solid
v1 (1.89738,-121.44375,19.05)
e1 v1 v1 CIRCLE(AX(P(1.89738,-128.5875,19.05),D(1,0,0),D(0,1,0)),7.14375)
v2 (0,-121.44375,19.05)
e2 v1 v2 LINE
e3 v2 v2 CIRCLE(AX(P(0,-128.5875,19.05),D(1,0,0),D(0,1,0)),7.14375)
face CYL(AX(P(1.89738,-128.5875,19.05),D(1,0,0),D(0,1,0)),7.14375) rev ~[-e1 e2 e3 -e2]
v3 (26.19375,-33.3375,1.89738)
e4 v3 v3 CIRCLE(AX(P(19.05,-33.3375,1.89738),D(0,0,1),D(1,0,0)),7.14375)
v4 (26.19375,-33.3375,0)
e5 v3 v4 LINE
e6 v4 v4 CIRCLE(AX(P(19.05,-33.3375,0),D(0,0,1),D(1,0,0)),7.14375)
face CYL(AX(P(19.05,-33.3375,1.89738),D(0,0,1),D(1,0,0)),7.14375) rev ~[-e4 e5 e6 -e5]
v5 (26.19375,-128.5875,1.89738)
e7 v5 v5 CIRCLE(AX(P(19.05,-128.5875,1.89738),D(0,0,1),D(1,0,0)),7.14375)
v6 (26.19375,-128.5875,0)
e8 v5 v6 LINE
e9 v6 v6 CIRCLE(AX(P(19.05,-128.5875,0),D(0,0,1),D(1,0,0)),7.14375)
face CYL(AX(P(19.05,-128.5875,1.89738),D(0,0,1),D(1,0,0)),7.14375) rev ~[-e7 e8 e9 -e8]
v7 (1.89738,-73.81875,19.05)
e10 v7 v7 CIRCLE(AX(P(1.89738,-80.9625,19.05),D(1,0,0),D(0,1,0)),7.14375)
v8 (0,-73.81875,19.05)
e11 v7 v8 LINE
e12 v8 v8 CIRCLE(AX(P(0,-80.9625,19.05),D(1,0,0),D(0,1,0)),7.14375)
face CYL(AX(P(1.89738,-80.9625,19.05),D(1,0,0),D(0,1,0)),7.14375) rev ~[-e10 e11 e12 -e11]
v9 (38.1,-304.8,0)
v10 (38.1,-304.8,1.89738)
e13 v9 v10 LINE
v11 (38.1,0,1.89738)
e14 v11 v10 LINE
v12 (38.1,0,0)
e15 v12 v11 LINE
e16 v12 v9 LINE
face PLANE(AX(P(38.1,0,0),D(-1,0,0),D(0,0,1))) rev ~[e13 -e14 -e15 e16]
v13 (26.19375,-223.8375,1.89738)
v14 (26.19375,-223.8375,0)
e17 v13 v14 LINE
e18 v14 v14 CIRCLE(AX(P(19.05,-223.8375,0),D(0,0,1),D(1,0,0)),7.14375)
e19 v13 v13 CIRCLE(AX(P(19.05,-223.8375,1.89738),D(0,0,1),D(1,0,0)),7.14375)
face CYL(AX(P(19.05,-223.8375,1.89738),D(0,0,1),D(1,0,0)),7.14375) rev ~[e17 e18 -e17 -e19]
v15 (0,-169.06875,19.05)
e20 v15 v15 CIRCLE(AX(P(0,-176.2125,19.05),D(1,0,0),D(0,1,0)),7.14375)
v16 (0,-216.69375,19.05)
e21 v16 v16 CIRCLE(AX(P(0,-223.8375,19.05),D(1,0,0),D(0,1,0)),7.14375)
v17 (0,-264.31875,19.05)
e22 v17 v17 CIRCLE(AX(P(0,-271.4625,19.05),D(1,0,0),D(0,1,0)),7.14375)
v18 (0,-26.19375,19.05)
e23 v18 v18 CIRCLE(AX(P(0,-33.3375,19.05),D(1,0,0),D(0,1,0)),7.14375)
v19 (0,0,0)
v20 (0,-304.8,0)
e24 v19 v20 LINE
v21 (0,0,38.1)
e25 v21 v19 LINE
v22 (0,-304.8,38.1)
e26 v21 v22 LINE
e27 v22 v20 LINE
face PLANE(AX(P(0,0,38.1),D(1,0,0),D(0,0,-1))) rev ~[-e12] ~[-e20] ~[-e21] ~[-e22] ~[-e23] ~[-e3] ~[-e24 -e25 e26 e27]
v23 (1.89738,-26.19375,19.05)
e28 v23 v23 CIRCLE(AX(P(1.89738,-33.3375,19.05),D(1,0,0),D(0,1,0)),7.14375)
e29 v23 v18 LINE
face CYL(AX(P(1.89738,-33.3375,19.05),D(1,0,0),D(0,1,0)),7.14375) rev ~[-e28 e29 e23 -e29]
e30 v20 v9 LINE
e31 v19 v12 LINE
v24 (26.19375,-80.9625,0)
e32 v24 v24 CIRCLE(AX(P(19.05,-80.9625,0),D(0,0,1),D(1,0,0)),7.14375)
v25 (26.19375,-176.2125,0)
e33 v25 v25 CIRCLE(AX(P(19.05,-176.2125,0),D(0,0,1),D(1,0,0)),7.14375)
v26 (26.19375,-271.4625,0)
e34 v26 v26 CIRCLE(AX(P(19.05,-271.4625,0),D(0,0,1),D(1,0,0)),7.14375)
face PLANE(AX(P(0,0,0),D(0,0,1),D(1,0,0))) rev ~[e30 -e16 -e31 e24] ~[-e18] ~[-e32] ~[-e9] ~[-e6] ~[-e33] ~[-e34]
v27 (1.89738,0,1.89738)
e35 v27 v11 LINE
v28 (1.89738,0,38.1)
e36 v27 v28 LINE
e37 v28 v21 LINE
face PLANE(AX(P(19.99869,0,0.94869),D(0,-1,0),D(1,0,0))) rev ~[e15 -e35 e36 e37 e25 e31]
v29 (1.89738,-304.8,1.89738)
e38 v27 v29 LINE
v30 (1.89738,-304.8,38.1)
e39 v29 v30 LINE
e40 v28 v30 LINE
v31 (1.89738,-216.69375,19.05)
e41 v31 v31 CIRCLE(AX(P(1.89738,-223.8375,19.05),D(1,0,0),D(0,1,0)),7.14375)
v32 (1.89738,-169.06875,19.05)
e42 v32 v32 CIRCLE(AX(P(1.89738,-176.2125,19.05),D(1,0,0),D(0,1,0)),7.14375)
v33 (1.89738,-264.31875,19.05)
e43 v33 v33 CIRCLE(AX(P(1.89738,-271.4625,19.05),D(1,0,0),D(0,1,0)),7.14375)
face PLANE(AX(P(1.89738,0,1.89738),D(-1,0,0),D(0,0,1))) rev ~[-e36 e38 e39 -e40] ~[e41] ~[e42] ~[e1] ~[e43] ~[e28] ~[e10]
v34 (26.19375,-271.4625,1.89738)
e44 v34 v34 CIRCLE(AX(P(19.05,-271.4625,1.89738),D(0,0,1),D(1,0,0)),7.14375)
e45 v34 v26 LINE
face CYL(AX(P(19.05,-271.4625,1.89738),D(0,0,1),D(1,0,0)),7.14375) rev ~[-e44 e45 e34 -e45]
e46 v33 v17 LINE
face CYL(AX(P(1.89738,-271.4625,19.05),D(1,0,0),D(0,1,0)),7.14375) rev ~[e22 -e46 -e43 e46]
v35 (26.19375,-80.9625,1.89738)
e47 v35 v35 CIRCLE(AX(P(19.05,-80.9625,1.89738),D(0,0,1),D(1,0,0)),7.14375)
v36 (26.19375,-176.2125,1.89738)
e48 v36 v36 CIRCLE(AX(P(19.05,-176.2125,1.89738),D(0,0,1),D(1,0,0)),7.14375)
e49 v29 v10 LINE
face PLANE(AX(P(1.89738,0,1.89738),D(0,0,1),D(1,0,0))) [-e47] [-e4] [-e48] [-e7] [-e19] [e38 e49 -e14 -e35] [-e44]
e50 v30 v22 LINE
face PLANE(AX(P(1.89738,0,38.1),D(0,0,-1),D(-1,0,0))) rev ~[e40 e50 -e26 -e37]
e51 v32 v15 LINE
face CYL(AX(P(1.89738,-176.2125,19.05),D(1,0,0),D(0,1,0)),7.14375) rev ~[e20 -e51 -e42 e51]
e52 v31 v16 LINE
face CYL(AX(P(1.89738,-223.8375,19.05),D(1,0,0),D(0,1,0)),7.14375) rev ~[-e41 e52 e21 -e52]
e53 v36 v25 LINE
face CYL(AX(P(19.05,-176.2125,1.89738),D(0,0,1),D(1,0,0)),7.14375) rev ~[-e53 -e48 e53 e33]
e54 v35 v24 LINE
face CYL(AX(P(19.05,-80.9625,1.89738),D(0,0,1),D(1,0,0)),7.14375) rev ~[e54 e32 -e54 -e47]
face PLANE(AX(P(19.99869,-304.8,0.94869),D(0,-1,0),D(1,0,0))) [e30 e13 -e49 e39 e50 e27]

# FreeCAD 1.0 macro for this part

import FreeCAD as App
import Part
import Sketcher
Q = App.Units.Quantity

doc = App.newDocument("Part")
body = doc.addObject("PartDesign::Body", "Body")

# Sketch on XZ plane
sketch1 = body.newObject("Sketcher::SketchObject", "Sketch")
sketch1.AttachmentSupport = (doc.getObject("XZ_Plane"), [""])
sketch1.MapMode = "FlatFace"
sketch1.addGeometry([
    Part.LineSegment(App.Vector(38.1, 0, 0), App.Vector(38.1, 1.89738, 0)),  # 0
    Part.LineSegment(App.Vector(38.1, 1.89738, 0), App.Vector(1.89738, 1.89738, 0)),  # 1
    Part.LineSegment(App.Vector(1.89738, 1.89738, 0), App.Vector(1.89738, 38.1, 0)),  # 2
    Part.LineSegment(App.Vector(1.89738, 38.1, 0), App.Vector(0, 38.1, 0)),  # 3
    Part.LineSegment(App.Vector(0, 38.1, 0), App.Vector(0, 0, 0)),  # 4
    Part.LineSegment(App.Vector(0, 0, 0), App.Vector(38.1, 0, 0)),  # 5
], False)
sketch1.addConstraint([
    Sketcher.Constraint("Coincident", 0, 2, 1, 1),
    Sketcher.Constraint("Coincident", 1, 2, 2, 1),
    Sketcher.Constraint("Coincident", 2, 2, 3, 1),
    Sketcher.Constraint("Coincident", 3, 2, 4, 1),
    Sketcher.Constraint("Coincident", 4, 2, 5, 1),
    Sketcher.Constraint("Coincident", 5, 2, 0, 1),
    Sketcher.Constraint("Vertical", 0),
    Sketcher.Constraint("Horizontal", 1),
    Sketcher.Constraint("Vertical", 2),
    Sketcher.Constraint("Horizontal", 3),
    Sketcher.Constraint("Vertical", 4),
    Sketcher.Constraint("Horizontal", 5),
    Sketcher.Constraint("Coincident", 4, 2, -1, 1),
    Sketcher.Constraint("Equal", 3, 0),
    Sketcher.Constraint("Equal", 1, 2),
    Sketcher.Constraint("DistanceX", 5, 1, 5, 2, Q("1.5 in")),
    Sketcher.Constraint("DistanceX", 1, 2, 1, 1, Q("1.4253 in")),
])
pad1 = body.newObject("PartDesign::Pad", "Pad")
pad1.Profile = sketch1
pad1.Length = Q("12 in")

# Sketch on XY plane
sketch2 = body.newObject("Sketcher::SketchObject", "Sketch001")
sketch2.AttachmentSupport = (doc.getObject("XY_Plane"), [""])
sketch2.MapMode = "FlatFace"
sketch2.AttachmentOffset = App.Placement(App.Vector(0, 0, 0.0747 * 25.4), App.Rotation())
sketch2.addGeometry([
    Part.Circle(App.Vector(19.05, -271.4625, 0), App.Vector(0, 0, 1), 7.14375),  # 0
    Part.Circle(App.Vector(19.05, -223.8375, 0), App.Vector(0, 0, 1), 7.14375),  # 1
    Part.Circle(App.Vector(19.05, -176.2125, 0), App.Vector(0, 0, 1), 7.14375),  # 2
    Part.Circle(App.Vector(19.05, -128.5875, 0), App.Vector(0, 0, 1), 7.14375),  # 3
    Part.Circle(App.Vector(19.05, -80.9625, 0), App.Vector(0, 0, 1), 7.14375),  # 4
    Part.Circle(App.Vector(19.05, -33.3375, 0), App.Vector(0, 0, 1), 7.14375),  # 5
], False)
sketch2.addConstraint([
    Sketcher.Constraint("Equal", 0, 1),
    Sketcher.Constraint("Equal", 1, 2),
    Sketcher.Constraint("Equal", 2, 3),
    Sketcher.Constraint("Equal", 3, 4),
    Sketcher.Constraint("Equal", 4, 5),
    Sketcher.Constraint("Vertical", 0, 3, 1, 3),
    Sketcher.Constraint("Vertical", 1, 3, 2, 3),
    Sketcher.Constraint("Vertical", 2, 3, 3, 3),
    Sketcher.Constraint("Vertical", 3, 3, 4, 3),
    Sketcher.Constraint("Vertical", 4, 3, 5, 3),
    Sketcher.Constraint("Diameter", 0, Q("0.5625 in")),
    Sketcher.Constraint("DistanceY", 0, 3, 4, 3, Q("7.5 in")),
    Sketcher.Constraint("DistanceY", 1, 3, 5, 3, Q("7.5 in")),
    Sketcher.Constraint("DistanceX", -1, 1, 0, 3, Q("0.75 in")),
    Sketcher.Constraint("DistanceY", 0, 3, 2, 3, Q("3.75 in")),
    Sketcher.Constraint("DistanceY", 1, 3, 3, 3, Q("3.75 in")),
    Sketcher.Constraint("DistanceY", 0, 3, -1, 1, Q("10.6875 in")),
    Sketcher.Constraint("DistanceY", 1, 3, -1, 1, Q("8.8125 in")),
])
pocket1 = body.newObject("PartDesign::Pocket", "Pocket")
pocket1.Profile = sketch2
pocket1.Length = Q("1 in")

# Sketch on YZ plane
sketch3 = body.newObject("Sketcher::SketchObject", "Sketch002")
sketch3.AttachmentSupport = (doc.getObject("YZ_Plane"), [""])
sketch3.MapMode = "FlatFace"
sketch3.AttachmentOffset = App.Placement(App.Vector(0, 0, 0.0747 * 25.4), App.Rotation())
sketch3.addGeometry([
    Part.Circle(App.Vector(-271.4625, 19.05, 0), App.Vector(0, 0, 1), 7.14375),  # 0
    Part.Circle(App.Vector(-223.8375, 19.05, 0), App.Vector(0, 0, 1), 7.14375),  # 1
    Part.Circle(App.Vector(-176.2125, 19.05, 0), App.Vector(0, 0, 1), 7.14375),  # 2
    Part.Circle(App.Vector(-128.5875, 19.05, 0), App.Vector(0, 0, 1), 7.14375),  # 3
    Part.Circle(App.Vector(-80.9625, 19.05, 0), App.Vector(0, 0, 1), 7.14375),  # 4
    Part.Circle(App.Vector(-33.3375, 19.05, 0), App.Vector(0, 0, 1), 7.14375),  # 5
], False)
sketch3.addConstraint([
    Sketcher.Constraint("Equal", 0, 1),
    Sketcher.Constraint("Equal", 1, 2),
    Sketcher.Constraint("Equal", 2, 3),
    Sketcher.Constraint("Equal", 3, 4),
    Sketcher.Constraint("Equal", 4, 5),
    Sketcher.Constraint("Horizontal", 0, 3, 1, 3),
    Sketcher.Constraint("Horizontal", 1, 3, 2, 3),
    Sketcher.Constraint("Horizontal", 2, 3, 3, 3),
    Sketcher.Constraint("Horizontal", 3, 3, 4, 3),
    Sketcher.Constraint("Horizontal", 4, 3, 5, 3),
    Sketcher.Constraint("Diameter", 0, Q("0.5625 in")),
    Sketcher.Constraint("DistanceX", 0, 3, 4, 3, Q("7.5 in")),
    Sketcher.Constraint("DistanceX", 1, 3, 5, 3, Q("7.5 in")),
    Sketcher.Constraint("DistanceY", -1, 1, 0, 3, Q("0.75 in")),
    Sketcher.Constraint("DistanceX", 0, 3, 2, 3, Q("3.75 in")),
    Sketcher.Constraint("DistanceX", 1, 3, 3, 3, Q("3.75 in")),
    Sketcher.Constraint("DistanceX", 0, 3, -1, 1, Q("10.6875 in")),
    Sketcher.Constraint("DistanceX", 1, 3, -1, 1, Q("8.8125 in")),
])
pocket2 = body.newObject("PartDesign::Pocket", "Pocket001")
pocket2.Profile = sketch3
pocket2.Length = Q("1 in")

doc.recompute()
